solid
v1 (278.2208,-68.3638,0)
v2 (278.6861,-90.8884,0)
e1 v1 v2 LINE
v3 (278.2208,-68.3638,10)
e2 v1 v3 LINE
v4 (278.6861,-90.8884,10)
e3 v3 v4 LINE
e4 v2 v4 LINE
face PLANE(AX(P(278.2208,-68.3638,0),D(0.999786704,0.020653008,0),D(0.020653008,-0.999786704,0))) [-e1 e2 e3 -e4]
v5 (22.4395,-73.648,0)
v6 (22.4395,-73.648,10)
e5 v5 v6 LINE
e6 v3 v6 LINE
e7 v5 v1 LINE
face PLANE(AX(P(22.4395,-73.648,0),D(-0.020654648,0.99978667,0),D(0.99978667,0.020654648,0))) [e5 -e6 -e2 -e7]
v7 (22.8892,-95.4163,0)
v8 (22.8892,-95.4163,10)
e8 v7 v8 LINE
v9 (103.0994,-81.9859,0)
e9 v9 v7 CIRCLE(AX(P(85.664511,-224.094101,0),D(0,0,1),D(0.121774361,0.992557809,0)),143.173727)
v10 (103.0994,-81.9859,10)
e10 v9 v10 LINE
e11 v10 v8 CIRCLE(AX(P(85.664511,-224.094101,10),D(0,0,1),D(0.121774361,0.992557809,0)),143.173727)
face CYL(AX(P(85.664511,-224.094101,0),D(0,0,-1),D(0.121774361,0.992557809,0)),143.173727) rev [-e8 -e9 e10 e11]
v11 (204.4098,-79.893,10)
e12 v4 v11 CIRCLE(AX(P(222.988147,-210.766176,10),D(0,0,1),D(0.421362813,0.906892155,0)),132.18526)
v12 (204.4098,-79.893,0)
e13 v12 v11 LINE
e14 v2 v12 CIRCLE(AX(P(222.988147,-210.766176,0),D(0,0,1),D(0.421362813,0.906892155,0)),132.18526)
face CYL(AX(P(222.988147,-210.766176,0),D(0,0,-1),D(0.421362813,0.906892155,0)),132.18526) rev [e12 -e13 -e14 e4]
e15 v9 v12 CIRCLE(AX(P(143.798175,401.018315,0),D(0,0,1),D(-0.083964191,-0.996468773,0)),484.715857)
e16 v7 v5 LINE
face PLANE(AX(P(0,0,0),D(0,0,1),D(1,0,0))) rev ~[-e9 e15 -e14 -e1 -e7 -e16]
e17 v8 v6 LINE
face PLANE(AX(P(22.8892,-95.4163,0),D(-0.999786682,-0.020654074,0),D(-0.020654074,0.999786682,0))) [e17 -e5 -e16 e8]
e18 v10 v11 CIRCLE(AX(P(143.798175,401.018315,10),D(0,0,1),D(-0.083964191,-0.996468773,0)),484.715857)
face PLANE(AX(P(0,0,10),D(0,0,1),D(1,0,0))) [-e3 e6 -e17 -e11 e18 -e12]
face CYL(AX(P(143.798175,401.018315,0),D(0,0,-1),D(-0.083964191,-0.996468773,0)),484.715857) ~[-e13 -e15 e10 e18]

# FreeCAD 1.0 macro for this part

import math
import FreeCAD as App
import Part
import Sketcher

V = App.Vector
Q = App.Units.Quantity

doc = App.newDocument("Part")
body = doc.addObject("PartDesign::Body", "Body")

sketch1 = doc.addObject("Sketcher::SketchObject", "Sketch")
body.addObject(sketch1)
sketch1.AttachmentSupport = (doc.XY_Plane, [""])
sketch1.MapMode = "FlatFace"
sketch1.addGeometry([
    Part.ArcOfCircle(Part.Circle(V(143.798175, 401.018315, 0), V(0, 0, 1), 484.715857), math.radians(-94.816464), math.radians(-82.816606)),
    Part.ArcOfCircle(Part.Circle(V(222.9879, -210.767, 0), V(0, 0, 1), 132.186112), math.radians(65.079396), math.radians(98.07939)),
    Part.LineSegment(V(278.6861, -90.8884, 0), V(278.2208, -68.3638, 0)),
    Part.LineSegment(V(278.2208, -68.3638, 0), V(22.4395, -73.648, 0)),
    Part.LineSegment(V(22.4395, -73.648, 0), V(22.8892, -95.4163, 0)),
    Part.ArcOfCircle(Part.Circle(V(85.6645, -224.0936, 0), V(0, 0, 1), 143.173231), math.radians(83.005454), math.radians(116.005463)),
], False)
sketch1.addConstraint([
    Sketcher.Constraint("Coincident", 0, 2, 1, 2),
    Sketcher.Constraint("Coincident", 1, 1, 2, 1),
    Sketcher.Constraint("Coincident", 2, 2, 3, 1),
    Sketcher.Constraint("Coincident", 3, 2, 4, 1),
    Sketcher.Constraint("Coincident", 4, 2, 5, 2),
    Sketcher.Constraint("Coincident", 5, 1, 0, 1),
    Sketcher.Constraint("Radius", 1, Q("132.186 mm")),
    Sketcher.Constraint("Radius", 0, Q("484.7159 mm")),
    Sketcher.Constraint("Radius", 5, Q("143.1732 mm")),
    Sketcher.Constraint("DistanceX", 3, 2, 5, 1, Q("80.66 mm")),
    Sketcher.Constraint("Distance", 4, Q("21.773 mm")),
    Sketcher.Constraint("DistanceX", -1, 1, 1, 3, Q("222.988 mm")),
    Sketcher.Constraint("DistanceY", 1, 3, -1, 1, Q("210.767 mm")),
    Sketcher.Constraint("DistanceY", 0, 2, -1, 1, Q("79.893 mm")),
    Sketcher.Constraint("DistanceX", -1, 1, 1, 1, Q("278.686 mm")),
    Sketcher.Constraint("DistanceY", 3, 2, -1, 1, Q("73.648 mm")),
    Sketcher.Constraint("DistanceY", 5, 1, -1, 1, Q("81.986 mm")),
    Sketcher.Constraint("DistanceY", 5, 3, 0, 3, Q("625.112 mm")),
    Sketcher.Constraint("DistanceX", 0, 3, 1, 1, Q("134.888 mm")),
    Sketcher.Constraint("DistanceX", 1, 3, 2, 2, Q("55.233 mm")),
    Sketcher.Constraint("DistanceY", 2, 2, 0, 3, Q("469.382 mm")),
])
pad1 = doc.addObject("PartDesign::Pad", "Pad")
body.addObject(pad1)
pad1.Profile = sketch1
pad1.Length = 10

doc.recompute()
